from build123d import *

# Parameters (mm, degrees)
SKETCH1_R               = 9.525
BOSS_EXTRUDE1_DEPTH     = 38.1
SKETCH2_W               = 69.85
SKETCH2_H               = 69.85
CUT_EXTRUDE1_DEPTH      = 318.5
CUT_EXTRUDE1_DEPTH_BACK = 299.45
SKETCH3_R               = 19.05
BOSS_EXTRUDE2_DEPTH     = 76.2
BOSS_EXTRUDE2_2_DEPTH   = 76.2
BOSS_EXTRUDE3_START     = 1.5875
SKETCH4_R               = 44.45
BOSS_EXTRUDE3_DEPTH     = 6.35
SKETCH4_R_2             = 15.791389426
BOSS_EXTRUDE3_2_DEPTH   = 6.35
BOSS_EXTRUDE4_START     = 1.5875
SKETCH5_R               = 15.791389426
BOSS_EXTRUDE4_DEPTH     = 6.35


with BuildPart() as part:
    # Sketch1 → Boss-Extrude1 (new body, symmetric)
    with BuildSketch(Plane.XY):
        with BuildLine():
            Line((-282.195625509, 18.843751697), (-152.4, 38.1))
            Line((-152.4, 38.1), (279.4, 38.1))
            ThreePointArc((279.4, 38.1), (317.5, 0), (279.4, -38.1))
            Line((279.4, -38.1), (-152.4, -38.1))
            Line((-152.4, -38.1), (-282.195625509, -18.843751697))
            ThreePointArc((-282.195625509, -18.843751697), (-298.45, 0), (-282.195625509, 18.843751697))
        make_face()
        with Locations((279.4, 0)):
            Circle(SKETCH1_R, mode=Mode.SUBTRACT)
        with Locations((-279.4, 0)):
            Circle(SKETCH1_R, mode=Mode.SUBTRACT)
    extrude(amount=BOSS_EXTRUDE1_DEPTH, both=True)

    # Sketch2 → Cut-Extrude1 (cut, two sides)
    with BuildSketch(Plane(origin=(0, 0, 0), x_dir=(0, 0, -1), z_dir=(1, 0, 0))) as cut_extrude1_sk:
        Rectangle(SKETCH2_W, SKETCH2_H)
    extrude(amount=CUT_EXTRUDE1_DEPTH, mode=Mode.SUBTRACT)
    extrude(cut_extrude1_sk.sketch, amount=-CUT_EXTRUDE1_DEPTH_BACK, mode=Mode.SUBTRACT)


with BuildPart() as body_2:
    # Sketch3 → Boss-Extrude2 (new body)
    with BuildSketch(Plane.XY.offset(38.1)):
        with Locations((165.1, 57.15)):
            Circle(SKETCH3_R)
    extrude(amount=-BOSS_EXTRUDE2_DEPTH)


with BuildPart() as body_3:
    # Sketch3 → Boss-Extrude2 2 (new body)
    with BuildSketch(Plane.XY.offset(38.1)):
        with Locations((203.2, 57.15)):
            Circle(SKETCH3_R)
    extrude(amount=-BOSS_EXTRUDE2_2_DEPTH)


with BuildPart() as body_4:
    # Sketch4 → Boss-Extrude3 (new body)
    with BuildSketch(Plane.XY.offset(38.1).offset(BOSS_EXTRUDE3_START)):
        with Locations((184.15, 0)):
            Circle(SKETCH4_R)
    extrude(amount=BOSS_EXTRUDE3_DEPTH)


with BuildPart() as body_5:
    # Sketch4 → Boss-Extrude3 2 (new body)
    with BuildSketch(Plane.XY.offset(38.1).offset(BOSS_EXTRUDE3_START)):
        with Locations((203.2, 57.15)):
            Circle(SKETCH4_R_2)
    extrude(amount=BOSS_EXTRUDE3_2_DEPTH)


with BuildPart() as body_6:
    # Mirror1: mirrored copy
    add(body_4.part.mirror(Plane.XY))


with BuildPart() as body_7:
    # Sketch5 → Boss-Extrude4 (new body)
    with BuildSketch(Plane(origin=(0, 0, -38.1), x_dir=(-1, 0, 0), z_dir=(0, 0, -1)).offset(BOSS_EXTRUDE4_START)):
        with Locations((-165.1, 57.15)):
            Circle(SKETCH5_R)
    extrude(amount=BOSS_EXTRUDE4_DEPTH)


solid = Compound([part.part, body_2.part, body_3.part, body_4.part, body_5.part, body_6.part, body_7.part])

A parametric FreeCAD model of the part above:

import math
import FreeCAD as App
import Part
import Sketcher

V = App.Vector
Q = App.Units.Quantity


def add_polygon(sketch, points):
    """Adds a closed chain of lines whose ends are joined by coincident constraints."""
    first, n = sketch.GeometryCount, len(points)
    for a, b in zip(points, points[1:] + points[:1]):
        sketch.addGeometry(Part.LineSegment(App.Vector(*a, 0), App.Vector(*b, 0)), False)
    for i in range(n):
        sketch.addConstraint(Sketcher.Constraint("Coincident", first + i, 2, first + (i + 1) % n, 1))

doc = App.newDocument("Part")
body = doc.addObject("PartDesign::Body", "Body")

# Sketch on XY plane
sketch1 = body.newObject("Sketcher::SketchObject", "Sketch")
sketch1.AttachmentSupport = (doc.getObject("XY_Plane"), [""])
sketch1.MapMode = "FlatFace"
sketch1.addGeometry([
    Part.LineSegment(V(-152, 38, 0), V(-282, 19, 0)),  # 0
    Part.ArcOfCircle(Part.Circle(V(-279, 0, 0), V(0, 0, 1), 19), math.radians(98), math.radians(262)),  # 1
    Part.LineSegment(V(-282, -19, 0), V(-152, -38, 0)),  # 2
    Part.LineSegment(V(-152, -38, 0), V(279, -38, 0)),  # 3
    Part.ArcOfCircle(Part.Circle(V(279, 0, 0), V(0, 0, 1), 38), math.radians(-90), math.radians(90)),  # 4
    Part.LineSegment(V(279, 38, 0), V(-152, 38, 0)),  # 5
    Part.Circle(V(279, 0, 0), V(0, 0, 1), 10),  # 6
    Part.Circle(V(-279, 0, 0), V(0, 0, 1), 10),  # 7
], False)
sketch1.addConstraint([
    Sketcher.Constraint("Tangent", 0, 2, 1, 1),
    Sketcher.Constraint("Tangent", 1, 2, 2, 1),
    Sketcher.Constraint("Coincident", 2, 2, 3, 1),
    Sketcher.Constraint("Tangent", 3, 2, 4, 1),
    Sketcher.Constraint("Tangent", 4, 2, 5, 1),
    Sketcher.Constraint("Coincident", 5, 2, 0, 1),
    Sketcher.Constraint("Horizontal", 3),
    Sketcher.Constraint("Horizontal", 5),
    Sketcher.Constraint("Coincident", 6, 3, 4, 3),
    Sketcher.Constraint("Coincident", 7, 3, 1, 3),
    Sketcher.Constraint("Equal", 6, 7),
    Sketcher.Constraint("Symmetric", 1, 3, 4, 3, -1, 1),
    Sketcher.Constraint("Symmetric", 0, 2, 1, 2, -1),
    Sketcher.Constraint("Radius", 4, Q("1.5 in")),
    Sketcher.Constraint("Diameter", 6, Q("0.75 in")),
    Sketcher.Constraint("DistanceX", 3, 1, 3, 2, Q("17 in")),
    Sketcher.Constraint("Radius", 1, Q("0.75 in")),
    Sketcher.Constraint("DistanceX", 1, 3, -1, 1, Q("11 in")),
])
pad1 = body.newObject("PartDesign::Pad", "Pad")
pad1.Profile = sketch1
pad1.Length = Q("3 in")
pad1.Midplane = True

# Sketch on YZ plane
sketch2 = body.newObject("Sketcher::SketchObject", "Sketch001")
sketch2.AttachmentSupport = (doc.getObject("YZ_Plane"), [""])
sketch2.MapMode = "FlatFace"
add_polygon(sketch2, [(35, 35), (-35, 35), (-35, -35), (35, -35)])  # lines 0-3
sketch2.addConstraint([
    Sketcher.Constraint("Horizontal", 0),
    Sketcher.Constraint("Vertical", 1),
    Sketcher.Constraint("Horizontal", 2),
    Sketcher.Constraint("Vertical", 3),
    Sketcher.Constraint("Symmetric", 0, 2, 2, 2, -1, 1),
    Sketcher.Constraint("Equal", 2, 1),
    Sketcher.Constraint("DistanceX", 0, 2, 0, 1, Q("2.75 in")),
])
pocket1 = body.newObject("PartDesign::Pocket", "Pocket")
pocket1.Profile = sketch2
pocket1.Type = "ThroughAll"
pocket1.Midplane = True
body2 = doc.addObject("PartDesign::Body", "Body001")

# Sketch on XY plane
sketch3 = body2.newObject("Sketcher::SketchObject", "Sketch002")
sketch3.AttachmentSupport = (doc.getObject("XY_Plane001"), [""])
sketch3.MapMode = "FlatFace"
sketch3.AttachmentOffset = App.Placement(V(0, 0, 1.5 * 25.4), App.Rotation())
sketch3.addGeometry(Part.Circle(V(165, 57, 0), V(0, 0, 1), 19), False)
sketch3.addConstraint([
    Sketcher.Constraint("Diameter", 0, Q("1.5 in")),
    Sketcher.Constraint("DistanceX", -1, 1, 0, 3, Q("6.5 in")),
    Sketcher.Constraint("DistanceY", -1, 1, 0, 3, Q("2.25 in")),
])
pad2 = body2.newObject("PartDesign::Pad", "Pad001")
pad2.Profile = sketch3
pad2.Length = Q("3 in")
pad2.Reversed = True
body3 = doc.addObject("PartDesign::Body", "Body002")

# Sketch on XY plane
sketch4 = body3.newObject("Sketcher::SketchObject", "Sketch003")
sketch4.AttachmentSupport = (doc.getObject("XY_Plane002"), [""])
sketch4.MapMode = "FlatFace"
sketch4.AttachmentOffset = App.Placement(V(0, 0, 1.5 * 25.4), App.Rotation())
sketch4.addGeometry(Part.Circle(V(203, 57, 0), V(0, 0, 1), 19), False)
sketch4.addConstraint([
    Sketcher.Constraint("Diameter", 0, Q("1.5 in")),
    Sketcher.Constraint("DistanceX", -1, 1, 0, 3, Q("8 in")),
    Sketcher.Constraint("DistanceY", -1, 1, 0, 3, Q("2.25 in")),
])
pad3 = body3.newObject("PartDesign::Pad", "Pad002")
pad3.Profile = sketch4
pad3.Length = Q("3 in")
pad3.Reversed = True
body4 = doc.addObject("PartDesign::Body", "Body003")

# Sketch on XY plane
sketch5 = body4.newObject("Sketcher::SketchObject", "Sketch004")
sketch5.AttachmentSupport = (doc.getObject("XY_Plane003"), [""])
sketch5.MapMode = "FlatFace"
sketch5.AttachmentOffset = App.Placement(V(0, 0, 1.5625 * 25.4), App.Rotation())
sketch5.addGeometry(Part.Circle(V(184, 0, 0), V(0, 0, 1), 44), False)
sketch5.addConstraint([
    Sketcher.Constraint("PointOnObject", 0, 3, -1),
    Sketcher.Constraint("Diameter", 0, Q("3.5 in")),
    Sketcher.Constraint("DistanceX", -1, 1, 0, 3, Q("7.25 in")),
])
pad4 = body4.newObject("PartDesign::Pad", "Pad003")
pad4.Profile = sketch5
pad4.Length = Q("0.25 in")
body5 = doc.addObject("PartDesign::Body", "Body004")

# Sketch on XY plane
sketch6 = body5.newObject("Sketcher::SketchObject", "Sketch005")
sketch6.AttachmentSupport = (doc.getObject("XY_Plane004"), [""])
sketch6.MapMode = "FlatFace"
sketch6.AttachmentOffset = App.Placement(V(0, 0, 1.5625 * 25.4), App.Rotation())
sketch6.addGeometry(Part.Circle(V(203, 57, 0), V(0, 0, 1), 16), False)
sketch6.addConstraint([
    Sketcher.Constraint("DistanceX", -1, 1, 0, 3, Q("8 in")),
    Sketcher.Constraint("DistanceY", -1, 1, 0, 3, Q("2.25 in")),
    Sketcher.Constraint("Diameter", 0, Q("31.582779 mm")),
])
pad5 = body5.newObject("PartDesign::Pad", "Pad004")
pad5.Profile = sketch6
pad5.Length = Q("0.25 in")
body6 = doc.addObject("PartDesign::Body", "Body005")
doc.recompute()

mirroring = doc.addObject("Part::Mirroring", "Mirroring")
mirroring.Source = body4
mirroring.Base = V(0, 0, 0)
mirroring.Normal = V(0, 0, 1)
body6.BaseFeature = mirroring
doc.recompute()
body7 = doc.addObject("PartDesign::Body", "Body006")

# Sketch on XY plane
sketch7 = body7.newObject("Sketcher::SketchObject", "Sketch006")
sketch7.AttachmentSupport = (doc.getObject("XY_Plane006"), [""])
sketch7.MapMode = "FlatFace"
sketch7.AttachmentOffset = App.Placement(V(0, 0, -1.5625 * 25.4), App.Rotation())
sketch7.addGeometry(Part.Circle(V(165, 57, 0), V(0, 0, 1), 16), False)
sketch7.addConstraint([
    Sketcher.Constraint("DistanceX", -1, 1, 0, 3, Q("6.5 in")),
    Sketcher.Constraint("DistanceY", -1, 1, 0, 3, Q("2.25 in")),
    Sketcher.Constraint("Diameter", 0, Q("31.582779 mm")),
])
pad6 = body7.newObject("PartDesign::Pad", "Pad005")
pad6.Profile = sketch7
pad6.Length = Q("0.25 in")
pad6.Reversed = True
mirroring.Visibility = False

doc.recompute()
